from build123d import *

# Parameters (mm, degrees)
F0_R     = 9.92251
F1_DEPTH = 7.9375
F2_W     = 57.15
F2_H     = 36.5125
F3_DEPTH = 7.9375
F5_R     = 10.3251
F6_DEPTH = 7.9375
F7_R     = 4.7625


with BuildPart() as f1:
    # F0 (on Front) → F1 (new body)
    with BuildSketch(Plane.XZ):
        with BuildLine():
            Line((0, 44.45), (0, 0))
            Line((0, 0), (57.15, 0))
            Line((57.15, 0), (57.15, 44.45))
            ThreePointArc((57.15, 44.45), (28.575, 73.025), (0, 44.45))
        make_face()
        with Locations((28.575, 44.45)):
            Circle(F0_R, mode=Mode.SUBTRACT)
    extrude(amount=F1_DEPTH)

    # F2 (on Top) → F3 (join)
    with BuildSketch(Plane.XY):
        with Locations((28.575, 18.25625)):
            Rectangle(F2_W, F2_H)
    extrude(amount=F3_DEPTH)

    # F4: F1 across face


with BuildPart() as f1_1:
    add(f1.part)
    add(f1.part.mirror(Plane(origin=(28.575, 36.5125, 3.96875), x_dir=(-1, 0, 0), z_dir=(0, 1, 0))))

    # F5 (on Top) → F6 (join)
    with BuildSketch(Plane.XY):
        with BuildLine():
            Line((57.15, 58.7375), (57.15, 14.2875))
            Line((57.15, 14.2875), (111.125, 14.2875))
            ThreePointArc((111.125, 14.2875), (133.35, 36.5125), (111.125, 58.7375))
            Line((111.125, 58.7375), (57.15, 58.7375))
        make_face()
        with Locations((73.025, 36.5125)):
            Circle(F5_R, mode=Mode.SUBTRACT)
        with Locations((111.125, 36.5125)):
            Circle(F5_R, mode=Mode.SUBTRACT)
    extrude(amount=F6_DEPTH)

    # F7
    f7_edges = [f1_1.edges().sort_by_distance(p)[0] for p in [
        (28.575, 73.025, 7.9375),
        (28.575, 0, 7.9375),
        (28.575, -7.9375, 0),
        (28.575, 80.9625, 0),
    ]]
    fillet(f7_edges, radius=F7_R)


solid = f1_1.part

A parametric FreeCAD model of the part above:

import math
import FreeCAD as App
import Part
import Sketcher

V = App.Vector
Q = App.Units.Quantity


def edges_at(feature, points):
    """Names of the edges that pass closest to the given points."""
    edges = feature.Shape.Edges
    near = lambda p: min(range(len(edges)), key=lambda i: edges[i].distToShape(Part.Vertex(*p))[0])
    return sorted({f"Edge{near(p) + 1}" for p in points})

doc = App.newDocument("Part")
body = doc.addObject("PartDesign::Body", "Body")

sketch1 = body.newObject("Sketcher::SketchObject", "Sketch")
sketch1.AttachmentSupport = (doc.getObject("XZ_Plane"), [""])
sketch1.MapMode = "FlatFace"
sketch1.addGeometry([
    Part.LineSegment(V(0, 44, 0), V(0, 0, 0)),
    Part.LineSegment(V(0, 0, 0), V(57, 0, 0)),
    Part.LineSegment(V(57, 0, 0), V(57, 44, 0)),
    Part.ArcOfCircle(Part.Circle(V(29, 44, 0), V(0, 0, 1), 29), math.radians(0), math.radians(180)),
    Part.Circle(V(29, 44, 0), V(0, 0, 1), 10),
], False)
sketch1.addConstraint([
    Sketcher.Constraint("Coincident", 0, 2, 1, 1),
    Sketcher.Constraint("Coincident", 1, 2, 2, 1),
    Sketcher.Constraint("Tangent", 2, 2, 3, 1),
    Sketcher.Constraint("Tangent", 3, 2, 0, 1),
    Sketcher.Constraint("Vertical", 0),
    Sketcher.Constraint("Horizontal", 1),
    Sketcher.Constraint("Vertical", 2),
    Sketcher.Constraint("Coincident", 0, 2, -1, 1),
    Sketcher.Constraint("Coincident", 4, 3, 3, 3),
    Sketcher.Constraint("Radius", 3, Q("1.125 in")),
    Sketcher.Constraint("Diameter", 4, Q("0.7813 in")),
    Sketcher.Constraint("DistanceY", 0, 2, 0, 1, Q("1.75 in")),
])
pad1 = body.newObject("PartDesign::Pad", "Pad")
pad1.Profile = sketch1
pad1.Length = Q("0.3125 in")

sketch2 = body.newObject("Sketcher::SketchObject", "Sketch001")
sketch2.AttachmentSupport = (doc.getObject("XY_Plane"), [""])
sketch2.MapMode = "FlatFace"
sketch2.addGeometry([
    Part.LineSegment(V(0, 37, 0), V(0, 0, 0)),
    Part.LineSegment(V(0, 0, 0), V(57, 0, 0)),
    Part.LineSegment(V(57, 0, 0), V(57, 37, 0)),
    Part.LineSegment(V(57, 37, 0), V(0, 37, 0)),
], False)
sketch2.addConstraint([
    Sketcher.Constraint("Coincident", 0, 2, 1, 1),
    Sketcher.Constraint("Coincident", 1, 2, 2, 1),
    Sketcher.Constraint("Coincident", 2, 2, 3, 1),
    Sketcher.Constraint("Coincident", 3, 2, 0, 1),
    Sketcher.Constraint("Vertical", 0),
    Sketcher.Constraint("Horizontal", 1),
    Sketcher.Constraint("Vertical", 2),
    Sketcher.Constraint("Horizontal", 3),
    Sketcher.Constraint("Coincident", 0, 2, -1, 1),
    Sketcher.Constraint("DistanceX", 1, 1, 1, 2, Q("2.25 in")),
    Sketcher.Constraint("DistanceY", 0, 2, 0, 1, Q("1.4375 in")),
])
pad2 = body.newObject("PartDesign::Pad", "Pad001")
pad2.Profile = sketch2
pad2.Length = Q("0.3125 in")
body2 = doc.addObject("PartDesign::Body", "Body001")
doc.recompute()

body2.BaseFeature = body
doc.recompute()

mirroring = doc.addObject("Part::Mirroring", "Mirroring")
mirroring.Source = body
mirroring.Base = V(28.575, 36.5125, 3.96875)
mirroring.Normal = V(0, 1, 0)
body3 = doc.addObject("PartDesign::Body", "Body002")
body3.BaseFeature = mirroring
boolean = body2.newObject("PartDesign::Boolean", "Boolean")
boolean.Type = "Fuse"
boolean.addObjects([body3])
doc.recompute()

sketch3 = body2.newObject("Sketcher::SketchObject", "Sketch002")
sketch3.AttachmentSupport = (doc.getObject("XY_Plane001"), [""])
sketch3.MapMode = "FlatFace"
sketch3.addGeometry([
    Part.LineSegment(V(57, 59, 0), V(57, 14, 0)),
    Part.LineSegment(V(57, 14, 0), V(111, 14, 0)),
    Part.ArcOfCircle(Part.Circle(V(111, 37, 0), V(0, 0, 1), 22), math.radians(-90), math.radians(90)),
    Part.LineSegment(V(111, 59, 0), V(57, 59, 0)),
    Part.Circle(V(73, 37, 0), V(0, 0, 1), 10),
    Part.Circle(V(111, 37, 0), V(0, 0, 1), 10),
], False)
sketch3.addConstraint([
    Sketcher.Constraint("Coincident", 0, 2, 1, 1),
    Sketcher.Constraint("Tangent", 1, 2, 2, 1),
    Sketcher.Constraint("Tangent", 2, 2, 3, 1),
    Sketcher.Constraint("Coincident", 3, 2, 0, 1),
    Sketcher.Constraint("Vertical", 0),
    Sketcher.Constraint("Horizontal", 1),
    Sketcher.Constraint("Horizontal", 3),
    Sketcher.Constraint("Coincident", 5, 3, 2, 3),
    Sketcher.Constraint("Equal", 4, 5),
    Sketcher.Constraint("Horizontal", 2, 3, 4, 3),
    Sketcher.Constraint("Diameter", 4, Q("0.813 in")),
    Sketcher.Constraint("Radius", 2, Q("0.875 in")),
    Sketcher.Constraint("DistanceX", 4, 3, 2, 3, Q("1.5 in")),
    Sketcher.Constraint("DistanceX", 1, 1, 1, 2, Q("2.125 in")),
    Sketcher.Constraint("DistanceX", -1, 1, 0, 2, Q("2.25 in")),
    Sketcher.Constraint("DistanceY", -1, 1, 2, 3, Q("1.4375 in")),
])
pad3 = body2.newObject("PartDesign::Pad", "Pad002")
pad3.Profile = sketch3
pad3.Length = Q("0.3125 in")
doc.recompute()

fillet = body2.newObject("PartDesign::Fillet", "Fillet")
fillet.Base = (pad3, edges_at(pad3, [
    (28.575, 73.025, 7.938),
    (28.575, 0, 7.938),
    (28.575, -7.938, 0),
    (28.575, 80.963, 0),
]))
fillet.Radius = Q("0.1875 in")
mirroring.Visibility = False

doc.recompute()
